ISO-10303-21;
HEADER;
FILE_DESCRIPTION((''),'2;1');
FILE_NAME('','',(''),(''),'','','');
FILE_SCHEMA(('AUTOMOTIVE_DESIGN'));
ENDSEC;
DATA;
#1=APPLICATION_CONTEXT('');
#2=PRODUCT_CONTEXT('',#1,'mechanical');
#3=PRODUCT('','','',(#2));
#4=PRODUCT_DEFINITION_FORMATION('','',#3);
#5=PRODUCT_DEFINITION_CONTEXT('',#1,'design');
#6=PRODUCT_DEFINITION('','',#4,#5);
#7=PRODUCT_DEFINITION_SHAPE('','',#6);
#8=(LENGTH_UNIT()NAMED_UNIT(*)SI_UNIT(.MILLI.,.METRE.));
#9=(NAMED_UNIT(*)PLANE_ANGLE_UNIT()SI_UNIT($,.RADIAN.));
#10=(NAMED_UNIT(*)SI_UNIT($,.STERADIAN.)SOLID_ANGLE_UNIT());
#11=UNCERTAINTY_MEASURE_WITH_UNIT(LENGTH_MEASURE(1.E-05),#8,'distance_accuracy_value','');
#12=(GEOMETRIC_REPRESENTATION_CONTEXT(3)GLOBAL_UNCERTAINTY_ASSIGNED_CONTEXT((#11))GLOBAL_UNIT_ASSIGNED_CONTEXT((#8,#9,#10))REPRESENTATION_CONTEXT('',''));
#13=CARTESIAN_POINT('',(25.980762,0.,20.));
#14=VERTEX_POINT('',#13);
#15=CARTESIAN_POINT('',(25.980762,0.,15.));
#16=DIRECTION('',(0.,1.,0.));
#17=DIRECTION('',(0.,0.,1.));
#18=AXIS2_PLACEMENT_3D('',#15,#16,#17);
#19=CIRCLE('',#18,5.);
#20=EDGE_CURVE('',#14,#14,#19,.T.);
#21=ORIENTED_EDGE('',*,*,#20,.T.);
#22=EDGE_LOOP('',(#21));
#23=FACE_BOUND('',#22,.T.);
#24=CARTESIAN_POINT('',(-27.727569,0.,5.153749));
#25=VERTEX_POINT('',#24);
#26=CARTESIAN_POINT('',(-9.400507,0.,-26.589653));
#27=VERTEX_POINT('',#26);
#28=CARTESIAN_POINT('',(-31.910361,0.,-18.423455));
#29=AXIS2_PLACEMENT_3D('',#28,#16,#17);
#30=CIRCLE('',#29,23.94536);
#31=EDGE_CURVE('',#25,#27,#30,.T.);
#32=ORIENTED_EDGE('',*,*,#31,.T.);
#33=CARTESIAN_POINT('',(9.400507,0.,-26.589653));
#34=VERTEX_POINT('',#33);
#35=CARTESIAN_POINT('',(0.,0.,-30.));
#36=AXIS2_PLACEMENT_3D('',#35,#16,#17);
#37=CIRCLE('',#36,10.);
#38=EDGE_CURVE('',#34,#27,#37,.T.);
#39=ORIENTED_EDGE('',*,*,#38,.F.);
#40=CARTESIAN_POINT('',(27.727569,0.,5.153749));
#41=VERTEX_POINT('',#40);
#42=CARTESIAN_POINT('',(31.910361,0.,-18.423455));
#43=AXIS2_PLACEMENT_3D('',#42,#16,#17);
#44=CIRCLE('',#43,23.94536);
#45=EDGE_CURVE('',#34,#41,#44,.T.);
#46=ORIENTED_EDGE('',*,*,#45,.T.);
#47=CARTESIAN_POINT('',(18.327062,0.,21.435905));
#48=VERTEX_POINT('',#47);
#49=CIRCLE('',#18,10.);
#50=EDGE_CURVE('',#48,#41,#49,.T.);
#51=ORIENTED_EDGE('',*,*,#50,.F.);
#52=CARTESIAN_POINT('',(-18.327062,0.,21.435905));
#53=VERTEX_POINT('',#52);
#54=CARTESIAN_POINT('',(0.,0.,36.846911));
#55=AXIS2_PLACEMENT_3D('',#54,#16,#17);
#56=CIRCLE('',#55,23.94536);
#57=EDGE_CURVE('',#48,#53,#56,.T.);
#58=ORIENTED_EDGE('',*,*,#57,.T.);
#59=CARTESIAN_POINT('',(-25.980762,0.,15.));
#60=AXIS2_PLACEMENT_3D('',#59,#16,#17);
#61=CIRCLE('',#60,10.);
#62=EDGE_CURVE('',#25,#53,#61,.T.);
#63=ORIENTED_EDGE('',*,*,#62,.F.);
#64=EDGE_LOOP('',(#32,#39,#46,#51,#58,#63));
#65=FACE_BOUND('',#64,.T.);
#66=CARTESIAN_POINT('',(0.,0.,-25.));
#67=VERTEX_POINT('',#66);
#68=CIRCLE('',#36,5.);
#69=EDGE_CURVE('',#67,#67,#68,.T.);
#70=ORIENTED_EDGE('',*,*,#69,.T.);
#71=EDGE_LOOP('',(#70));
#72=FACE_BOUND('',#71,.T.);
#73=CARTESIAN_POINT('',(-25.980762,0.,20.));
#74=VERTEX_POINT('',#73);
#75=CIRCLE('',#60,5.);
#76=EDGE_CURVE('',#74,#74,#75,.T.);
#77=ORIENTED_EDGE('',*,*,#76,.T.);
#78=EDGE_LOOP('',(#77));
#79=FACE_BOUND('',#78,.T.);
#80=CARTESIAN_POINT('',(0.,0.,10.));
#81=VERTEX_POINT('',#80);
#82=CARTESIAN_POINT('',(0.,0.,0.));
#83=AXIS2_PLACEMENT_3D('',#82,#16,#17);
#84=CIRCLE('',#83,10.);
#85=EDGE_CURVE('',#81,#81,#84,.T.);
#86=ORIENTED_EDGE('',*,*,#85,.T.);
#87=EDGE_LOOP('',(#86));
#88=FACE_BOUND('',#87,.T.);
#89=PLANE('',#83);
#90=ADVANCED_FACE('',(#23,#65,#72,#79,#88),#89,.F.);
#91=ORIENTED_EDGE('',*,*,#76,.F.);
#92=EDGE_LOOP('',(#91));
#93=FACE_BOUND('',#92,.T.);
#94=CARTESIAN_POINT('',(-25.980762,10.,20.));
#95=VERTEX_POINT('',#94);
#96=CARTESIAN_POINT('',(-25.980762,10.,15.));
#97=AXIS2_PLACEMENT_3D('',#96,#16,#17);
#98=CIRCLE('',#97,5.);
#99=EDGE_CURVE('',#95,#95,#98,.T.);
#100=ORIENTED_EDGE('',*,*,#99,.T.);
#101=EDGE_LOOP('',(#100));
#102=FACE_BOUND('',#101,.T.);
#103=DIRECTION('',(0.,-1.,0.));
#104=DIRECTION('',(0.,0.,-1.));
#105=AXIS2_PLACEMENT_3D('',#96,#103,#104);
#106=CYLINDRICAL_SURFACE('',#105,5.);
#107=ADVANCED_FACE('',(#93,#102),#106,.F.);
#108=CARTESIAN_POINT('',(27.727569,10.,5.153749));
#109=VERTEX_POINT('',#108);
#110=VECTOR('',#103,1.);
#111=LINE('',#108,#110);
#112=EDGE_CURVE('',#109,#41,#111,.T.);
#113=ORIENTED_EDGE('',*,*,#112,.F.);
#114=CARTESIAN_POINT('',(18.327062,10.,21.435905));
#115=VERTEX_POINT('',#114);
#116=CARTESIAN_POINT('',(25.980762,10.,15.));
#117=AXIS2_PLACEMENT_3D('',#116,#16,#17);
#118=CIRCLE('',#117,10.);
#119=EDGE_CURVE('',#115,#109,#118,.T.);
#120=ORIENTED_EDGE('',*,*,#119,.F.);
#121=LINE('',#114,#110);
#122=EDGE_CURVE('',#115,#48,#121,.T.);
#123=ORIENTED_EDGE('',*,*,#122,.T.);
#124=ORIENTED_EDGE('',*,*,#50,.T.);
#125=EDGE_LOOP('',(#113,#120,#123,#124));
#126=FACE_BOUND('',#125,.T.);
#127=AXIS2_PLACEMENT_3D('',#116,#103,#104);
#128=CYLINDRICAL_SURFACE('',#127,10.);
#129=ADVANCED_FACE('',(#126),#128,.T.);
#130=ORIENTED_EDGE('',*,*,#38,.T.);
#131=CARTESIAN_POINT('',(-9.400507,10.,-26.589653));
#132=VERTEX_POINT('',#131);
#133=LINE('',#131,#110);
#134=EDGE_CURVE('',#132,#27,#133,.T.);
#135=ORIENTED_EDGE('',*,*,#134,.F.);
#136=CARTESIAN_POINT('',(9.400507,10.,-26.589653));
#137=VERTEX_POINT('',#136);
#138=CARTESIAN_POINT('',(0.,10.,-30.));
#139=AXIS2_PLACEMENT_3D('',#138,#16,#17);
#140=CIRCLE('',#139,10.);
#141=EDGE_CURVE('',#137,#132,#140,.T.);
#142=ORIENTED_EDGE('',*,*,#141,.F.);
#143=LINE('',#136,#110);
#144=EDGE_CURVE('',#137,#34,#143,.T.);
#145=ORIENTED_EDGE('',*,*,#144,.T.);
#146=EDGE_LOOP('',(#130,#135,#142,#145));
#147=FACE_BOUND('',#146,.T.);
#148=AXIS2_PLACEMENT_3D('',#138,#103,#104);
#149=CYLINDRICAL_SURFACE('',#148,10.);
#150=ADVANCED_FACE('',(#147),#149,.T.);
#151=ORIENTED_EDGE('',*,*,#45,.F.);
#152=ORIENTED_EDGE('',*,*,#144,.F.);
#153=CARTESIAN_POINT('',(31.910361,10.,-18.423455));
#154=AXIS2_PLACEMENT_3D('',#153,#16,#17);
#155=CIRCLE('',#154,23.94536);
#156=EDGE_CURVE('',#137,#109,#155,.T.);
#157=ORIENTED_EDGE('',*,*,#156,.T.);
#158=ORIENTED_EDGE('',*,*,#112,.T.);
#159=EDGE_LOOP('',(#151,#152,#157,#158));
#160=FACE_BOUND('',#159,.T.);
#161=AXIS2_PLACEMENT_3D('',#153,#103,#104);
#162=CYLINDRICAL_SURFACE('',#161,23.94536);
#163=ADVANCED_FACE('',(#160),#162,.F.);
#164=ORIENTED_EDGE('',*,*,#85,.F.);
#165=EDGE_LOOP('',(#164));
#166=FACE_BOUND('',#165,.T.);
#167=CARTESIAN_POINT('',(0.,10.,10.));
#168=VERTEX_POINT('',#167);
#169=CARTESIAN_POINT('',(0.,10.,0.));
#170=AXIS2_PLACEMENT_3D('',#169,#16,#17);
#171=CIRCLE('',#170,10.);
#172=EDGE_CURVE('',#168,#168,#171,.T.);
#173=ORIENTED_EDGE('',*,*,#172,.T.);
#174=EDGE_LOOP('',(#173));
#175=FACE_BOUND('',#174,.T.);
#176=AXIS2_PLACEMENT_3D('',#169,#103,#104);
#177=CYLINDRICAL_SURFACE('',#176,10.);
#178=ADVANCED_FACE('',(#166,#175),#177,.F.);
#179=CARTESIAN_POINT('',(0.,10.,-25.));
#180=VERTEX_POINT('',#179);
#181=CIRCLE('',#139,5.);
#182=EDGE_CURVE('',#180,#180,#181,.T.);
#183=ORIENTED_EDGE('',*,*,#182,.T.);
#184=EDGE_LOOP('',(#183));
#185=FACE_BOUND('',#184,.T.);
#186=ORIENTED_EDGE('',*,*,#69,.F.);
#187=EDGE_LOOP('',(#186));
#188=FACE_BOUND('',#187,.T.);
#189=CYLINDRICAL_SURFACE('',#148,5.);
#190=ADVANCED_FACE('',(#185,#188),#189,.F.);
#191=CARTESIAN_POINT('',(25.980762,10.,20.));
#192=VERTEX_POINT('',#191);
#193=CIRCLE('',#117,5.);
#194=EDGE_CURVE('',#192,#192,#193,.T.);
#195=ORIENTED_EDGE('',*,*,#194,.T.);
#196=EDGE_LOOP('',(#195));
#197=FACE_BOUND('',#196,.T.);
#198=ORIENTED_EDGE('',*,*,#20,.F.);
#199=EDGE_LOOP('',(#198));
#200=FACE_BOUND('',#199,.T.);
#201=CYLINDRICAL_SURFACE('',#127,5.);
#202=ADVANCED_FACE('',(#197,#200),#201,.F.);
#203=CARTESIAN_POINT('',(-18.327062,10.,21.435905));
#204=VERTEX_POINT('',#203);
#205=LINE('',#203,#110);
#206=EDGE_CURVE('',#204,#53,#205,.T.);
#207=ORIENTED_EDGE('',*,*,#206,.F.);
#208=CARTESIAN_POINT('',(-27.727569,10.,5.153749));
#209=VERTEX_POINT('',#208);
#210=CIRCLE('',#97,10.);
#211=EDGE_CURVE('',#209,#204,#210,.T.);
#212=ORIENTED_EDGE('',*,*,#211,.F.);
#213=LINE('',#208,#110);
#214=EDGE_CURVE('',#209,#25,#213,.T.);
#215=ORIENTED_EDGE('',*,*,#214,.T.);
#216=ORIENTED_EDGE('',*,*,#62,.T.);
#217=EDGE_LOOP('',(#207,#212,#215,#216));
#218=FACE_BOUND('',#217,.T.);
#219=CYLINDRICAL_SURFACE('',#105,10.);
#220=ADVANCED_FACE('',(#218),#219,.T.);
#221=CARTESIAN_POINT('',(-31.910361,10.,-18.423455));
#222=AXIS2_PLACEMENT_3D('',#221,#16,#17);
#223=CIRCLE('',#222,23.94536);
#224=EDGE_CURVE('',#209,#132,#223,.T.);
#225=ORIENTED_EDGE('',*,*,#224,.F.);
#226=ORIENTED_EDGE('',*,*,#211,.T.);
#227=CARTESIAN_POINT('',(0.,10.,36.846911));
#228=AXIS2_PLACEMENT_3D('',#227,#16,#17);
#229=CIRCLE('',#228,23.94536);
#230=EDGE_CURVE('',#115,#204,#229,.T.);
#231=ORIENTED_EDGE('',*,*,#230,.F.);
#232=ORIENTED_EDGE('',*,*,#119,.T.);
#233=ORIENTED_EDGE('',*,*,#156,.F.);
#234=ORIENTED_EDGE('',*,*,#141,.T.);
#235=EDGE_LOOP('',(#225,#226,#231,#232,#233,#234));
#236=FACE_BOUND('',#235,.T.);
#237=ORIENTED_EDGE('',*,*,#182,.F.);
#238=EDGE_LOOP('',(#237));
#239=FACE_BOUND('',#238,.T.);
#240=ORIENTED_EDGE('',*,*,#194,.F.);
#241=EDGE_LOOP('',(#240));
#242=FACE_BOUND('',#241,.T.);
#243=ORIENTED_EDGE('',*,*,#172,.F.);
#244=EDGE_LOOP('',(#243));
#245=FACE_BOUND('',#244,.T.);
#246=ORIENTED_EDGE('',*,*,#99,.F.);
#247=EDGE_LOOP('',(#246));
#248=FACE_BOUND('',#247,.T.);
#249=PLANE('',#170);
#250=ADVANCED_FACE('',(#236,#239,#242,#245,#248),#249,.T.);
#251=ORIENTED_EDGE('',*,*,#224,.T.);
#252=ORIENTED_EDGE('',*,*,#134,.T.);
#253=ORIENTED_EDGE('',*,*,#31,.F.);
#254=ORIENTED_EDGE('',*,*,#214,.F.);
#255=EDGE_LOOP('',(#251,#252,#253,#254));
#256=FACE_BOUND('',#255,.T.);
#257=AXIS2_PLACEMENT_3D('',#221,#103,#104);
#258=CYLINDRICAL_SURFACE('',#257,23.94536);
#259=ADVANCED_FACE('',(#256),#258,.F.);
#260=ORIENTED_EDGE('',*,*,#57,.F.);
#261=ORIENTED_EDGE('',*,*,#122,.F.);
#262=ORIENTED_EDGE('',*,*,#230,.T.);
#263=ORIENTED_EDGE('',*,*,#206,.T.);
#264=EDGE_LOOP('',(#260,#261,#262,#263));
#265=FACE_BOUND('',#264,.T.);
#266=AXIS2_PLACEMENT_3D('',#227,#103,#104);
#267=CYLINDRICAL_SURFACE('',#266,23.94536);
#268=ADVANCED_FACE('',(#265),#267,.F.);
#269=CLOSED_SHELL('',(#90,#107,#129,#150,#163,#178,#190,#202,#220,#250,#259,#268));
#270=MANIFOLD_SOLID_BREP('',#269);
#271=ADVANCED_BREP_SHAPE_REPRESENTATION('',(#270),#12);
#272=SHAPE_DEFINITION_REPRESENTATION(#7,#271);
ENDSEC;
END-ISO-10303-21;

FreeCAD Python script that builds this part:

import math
import FreeCAD as App
import Part
import Sketcher

doc = App.newDocument("Part")
body = doc.addObject("PartDesign::Body", "Body")

# Sketch on XZ plane
sketch1 = doc.addObject("Sketcher::SketchObject", "Sketch")
body.addObject(sketch1)
sketch1.AttachmentSupport = (doc.XZ_Plane, [""])
sketch1.MapMode = "FlatFace"
sketch1.addGeometry([
    Part.ArcOfCircle(Part.Circle(App.Vector(-31.910361, -18.423455, 0), App.Vector(0, 0, 1), 23.94536), math.radians(-19.939924), math.radians(79.939924)),  # 0
    Part.ArcOfCircle(Part.Circle(App.Vector(-25.980762, 15, 0), App.Vector(0, 0, 1), 10), math.radians(40.060076), math.radians(259.939924)),  # 1
    Part.ArcOfCircle(Part.Circle(App.Vector(0, 36.846911, 0), App.Vector(0, 0, 1), 23.94536), math.radians(-139.939924), math.radians(-40.060076)),  # 2
    Part.ArcOfCircle(Part.Circle(App.Vector(25.980762, 15, 0), App.Vector(0, 0, 1), 10), math.radians(-79.939924), math.radians(139.939924)),  # 3
    Part.ArcOfCircle(Part.Circle(App.Vector(31.910361, -18.423455, 0), App.Vector(0, 0, 1), 23.94536), math.radians(100.060076), math.radians(199.939924)),  # 4
    Part.ArcOfCircle(Part.Circle(App.Vector(0, -30, 0), App.Vector(0, 0, 1), 10), math.radians(160.060076), math.radians(379.939924)),  # 5
    Part.Circle(App.Vector(-25.980762, 15, 0), App.Vector(0, 0, 1), 5),  # 6
    Part.Circle(App.Vector(25.980762, 15, 0), App.Vector(0, 0, 1), 5),  # 7
    Part.Circle(App.Vector(0, 0, 0), App.Vector(0, 0, 1), 10),  # 8
    Part.Circle(App.Vector(0, -30, 0), App.Vector(0, 0, 1), 5),  # 9
], False)
sketch1.addConstraint([
    Sketcher.Constraint("Tangent", 0, 2, 1, 2),
    Sketcher.Constraint("Tangent", 1, 1, 2, 1),
    Sketcher.Constraint("Tangent", 2, 2, 3, 2),
    Sketcher.Constraint("Tangent", 3, 1, 4, 1),
    Sketcher.Constraint("Tangent", 4, 2, 5, 2),
    Sketcher.Constraint("Tangent", 5, 1, 0, 1),
    Sketcher.Constraint("Coincident", 8, 3, -1, 1),
    Sketcher.Constraint("Coincident", 6, 3, 1, 3),
    Sketcher.Constraint("Coincident", 7, 3, 3, 3),
    Sketcher.Constraint("Coincident", 9, 3, 5, 3),
    Sketcher.Constraint("Equal", 0, 2),
    Sketcher.Constraint("Equal", 1, 3),
    Sketcher.Constraint("Equal", 2, 4),
    Sketcher.Constraint("Equal", 3, 5),
    Sketcher.Constraint("Equal", 6, 7),
    Sketcher.Constraint("Equal", 5, 8),
    Sketcher.Constraint("Equal", 7, 9),
    Sketcher.Constraint("Symmetric", 1, 3, 3, 3, -2),
    Sketcher.Constraint("PointOnObject", 5, 3, -2),
    Sketcher.Constraint("Diameter", 6, 10.0),
    Sketcher.Constraint("Diameter", 8, 20.0),
    Sketcher.Constraint("DistanceY", -1, 1, 1, 3, 15.0),
    Sketcher.Constraint("DistanceY", 5, 3, -1, 1, 30.0),
    Sketcher.Constraint("Radius", 0, 23.94536),
    Sketcher.Constraint("DistanceX", 0, 3, 1, 3, 5.929598),
])
pad1 = doc.addObject("PartDesign::Pad", "Pad")
body.addObject(pad1)
pad1.Profile = sketch1
pad1.Length = 10
pad1.Reversed = True

doc.recompute()
